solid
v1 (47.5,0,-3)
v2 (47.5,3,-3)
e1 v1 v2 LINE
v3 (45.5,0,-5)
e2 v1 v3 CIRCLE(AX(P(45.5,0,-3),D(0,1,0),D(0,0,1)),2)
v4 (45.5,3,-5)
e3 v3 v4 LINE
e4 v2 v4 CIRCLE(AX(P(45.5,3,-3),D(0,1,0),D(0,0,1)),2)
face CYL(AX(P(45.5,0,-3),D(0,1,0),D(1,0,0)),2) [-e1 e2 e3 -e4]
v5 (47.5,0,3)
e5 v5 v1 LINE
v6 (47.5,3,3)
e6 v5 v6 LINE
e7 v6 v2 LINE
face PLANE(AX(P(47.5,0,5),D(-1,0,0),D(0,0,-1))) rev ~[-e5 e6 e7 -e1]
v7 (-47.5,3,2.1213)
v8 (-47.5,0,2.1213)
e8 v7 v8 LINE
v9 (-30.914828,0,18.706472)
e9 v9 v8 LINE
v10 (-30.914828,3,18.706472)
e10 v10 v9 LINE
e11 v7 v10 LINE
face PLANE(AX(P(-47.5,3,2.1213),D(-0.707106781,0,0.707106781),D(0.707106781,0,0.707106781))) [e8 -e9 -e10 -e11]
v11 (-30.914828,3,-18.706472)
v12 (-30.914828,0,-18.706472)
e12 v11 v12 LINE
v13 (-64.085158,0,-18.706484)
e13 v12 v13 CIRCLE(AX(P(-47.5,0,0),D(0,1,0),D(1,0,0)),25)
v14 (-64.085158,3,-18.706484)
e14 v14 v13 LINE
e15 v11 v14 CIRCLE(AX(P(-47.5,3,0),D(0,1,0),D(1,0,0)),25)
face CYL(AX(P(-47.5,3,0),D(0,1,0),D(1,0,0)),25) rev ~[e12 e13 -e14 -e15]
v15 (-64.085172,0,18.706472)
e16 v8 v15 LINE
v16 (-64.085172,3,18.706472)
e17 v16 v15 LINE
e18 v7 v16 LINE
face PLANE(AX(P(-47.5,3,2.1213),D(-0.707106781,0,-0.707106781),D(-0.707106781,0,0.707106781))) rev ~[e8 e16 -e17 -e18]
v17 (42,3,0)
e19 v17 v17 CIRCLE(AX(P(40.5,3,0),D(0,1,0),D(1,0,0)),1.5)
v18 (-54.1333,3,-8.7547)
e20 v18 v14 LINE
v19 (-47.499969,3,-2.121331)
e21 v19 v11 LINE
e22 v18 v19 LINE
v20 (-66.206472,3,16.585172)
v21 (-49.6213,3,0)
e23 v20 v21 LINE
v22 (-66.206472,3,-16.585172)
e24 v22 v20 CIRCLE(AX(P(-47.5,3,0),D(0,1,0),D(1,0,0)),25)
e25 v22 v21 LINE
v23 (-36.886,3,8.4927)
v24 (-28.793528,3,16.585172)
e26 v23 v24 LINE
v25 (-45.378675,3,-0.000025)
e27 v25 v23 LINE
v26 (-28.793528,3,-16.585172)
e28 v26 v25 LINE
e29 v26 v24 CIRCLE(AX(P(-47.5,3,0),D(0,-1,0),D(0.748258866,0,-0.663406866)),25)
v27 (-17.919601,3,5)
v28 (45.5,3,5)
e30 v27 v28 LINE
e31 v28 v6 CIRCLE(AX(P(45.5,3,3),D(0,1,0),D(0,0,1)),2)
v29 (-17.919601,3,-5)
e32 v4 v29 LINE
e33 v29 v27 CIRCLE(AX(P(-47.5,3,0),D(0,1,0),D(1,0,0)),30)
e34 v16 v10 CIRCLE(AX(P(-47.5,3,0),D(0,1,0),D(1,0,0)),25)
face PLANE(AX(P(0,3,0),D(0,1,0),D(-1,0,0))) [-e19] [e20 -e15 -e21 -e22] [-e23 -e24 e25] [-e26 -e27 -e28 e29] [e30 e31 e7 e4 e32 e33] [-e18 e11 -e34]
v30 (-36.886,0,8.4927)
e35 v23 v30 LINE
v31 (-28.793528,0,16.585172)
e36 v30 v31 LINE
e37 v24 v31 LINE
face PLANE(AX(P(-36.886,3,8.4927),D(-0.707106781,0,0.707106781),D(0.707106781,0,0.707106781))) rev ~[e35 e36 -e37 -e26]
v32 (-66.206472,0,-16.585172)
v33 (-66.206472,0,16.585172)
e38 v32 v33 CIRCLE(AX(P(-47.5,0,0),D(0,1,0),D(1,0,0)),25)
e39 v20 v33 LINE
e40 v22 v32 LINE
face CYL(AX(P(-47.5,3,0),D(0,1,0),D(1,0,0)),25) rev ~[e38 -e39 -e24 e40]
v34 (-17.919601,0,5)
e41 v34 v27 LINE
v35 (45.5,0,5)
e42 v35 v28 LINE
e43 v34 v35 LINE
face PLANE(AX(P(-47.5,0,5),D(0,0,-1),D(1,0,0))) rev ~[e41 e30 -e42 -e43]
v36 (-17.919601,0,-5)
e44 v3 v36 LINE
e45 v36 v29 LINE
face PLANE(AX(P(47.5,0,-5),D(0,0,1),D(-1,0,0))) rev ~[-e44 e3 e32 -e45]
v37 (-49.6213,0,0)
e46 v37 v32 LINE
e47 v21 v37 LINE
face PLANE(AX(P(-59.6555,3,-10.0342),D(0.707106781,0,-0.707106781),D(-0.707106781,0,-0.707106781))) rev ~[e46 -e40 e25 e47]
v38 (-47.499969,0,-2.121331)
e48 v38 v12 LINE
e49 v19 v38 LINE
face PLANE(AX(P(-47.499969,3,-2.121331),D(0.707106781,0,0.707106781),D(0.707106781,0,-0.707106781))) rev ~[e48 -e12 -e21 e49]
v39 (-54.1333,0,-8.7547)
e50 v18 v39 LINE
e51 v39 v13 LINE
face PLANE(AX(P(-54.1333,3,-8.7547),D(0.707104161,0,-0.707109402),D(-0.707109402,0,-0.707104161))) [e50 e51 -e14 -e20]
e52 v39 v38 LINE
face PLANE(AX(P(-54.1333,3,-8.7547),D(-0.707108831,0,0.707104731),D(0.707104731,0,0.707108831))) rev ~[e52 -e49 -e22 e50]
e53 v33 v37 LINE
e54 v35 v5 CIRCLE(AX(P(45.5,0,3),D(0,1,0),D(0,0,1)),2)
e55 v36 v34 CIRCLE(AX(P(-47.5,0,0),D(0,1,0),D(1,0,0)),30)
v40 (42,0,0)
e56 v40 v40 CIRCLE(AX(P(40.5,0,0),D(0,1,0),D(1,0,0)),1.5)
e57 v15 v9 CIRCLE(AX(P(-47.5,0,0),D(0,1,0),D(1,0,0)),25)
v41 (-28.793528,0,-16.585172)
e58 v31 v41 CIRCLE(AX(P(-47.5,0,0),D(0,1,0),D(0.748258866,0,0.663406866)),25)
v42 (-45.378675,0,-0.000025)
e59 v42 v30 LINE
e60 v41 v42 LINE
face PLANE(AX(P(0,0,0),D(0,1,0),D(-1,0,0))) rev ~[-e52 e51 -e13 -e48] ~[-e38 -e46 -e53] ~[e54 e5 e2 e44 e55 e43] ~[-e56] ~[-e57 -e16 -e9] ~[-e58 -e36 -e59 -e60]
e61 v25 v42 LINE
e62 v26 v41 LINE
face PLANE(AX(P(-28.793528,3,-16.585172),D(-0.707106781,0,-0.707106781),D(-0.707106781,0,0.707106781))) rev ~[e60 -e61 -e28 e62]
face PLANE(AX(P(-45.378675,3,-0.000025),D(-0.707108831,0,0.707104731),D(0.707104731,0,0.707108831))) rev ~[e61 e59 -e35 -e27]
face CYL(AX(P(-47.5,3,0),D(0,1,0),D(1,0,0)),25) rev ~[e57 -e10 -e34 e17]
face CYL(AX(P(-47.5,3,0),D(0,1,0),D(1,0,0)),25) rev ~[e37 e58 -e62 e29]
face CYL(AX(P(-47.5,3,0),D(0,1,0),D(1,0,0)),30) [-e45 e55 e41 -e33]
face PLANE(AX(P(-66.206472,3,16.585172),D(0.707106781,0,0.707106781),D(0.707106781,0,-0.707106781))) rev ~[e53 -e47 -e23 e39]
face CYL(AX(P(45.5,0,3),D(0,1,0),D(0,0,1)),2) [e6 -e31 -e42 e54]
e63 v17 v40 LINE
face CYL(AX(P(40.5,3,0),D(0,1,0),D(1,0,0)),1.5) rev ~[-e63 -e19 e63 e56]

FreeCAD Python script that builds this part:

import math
import FreeCAD as App
import Part
import Sketcher


def edges_at(feature, points):
    """Names of the edges that pass closest to the given points."""
    edges = feature.Shape.Edges
    near = lambda p: min(range(len(edges)), key=lambda i: edges[i].distToShape(Part.Vertex(*p))[0])
    return sorted({f"Edge{near(p) + 1}" for p in points})

doc = App.newDocument("Part")
body = doc.addObject("PartDesign::Body", "Body")

# Sketch on XZ plane
sketch1 = body.newObject("Sketcher::SketchObject", "Sketch")
sketch1.AttachmentSupport = (doc.getObject("XZ_Plane"), [""])
sketch1.MapMode = "FlatFace"
sketch1.addGeometry([
    Part.LineSegment(App.Vector(-48, -5, 0), App.Vector(-48, 5, 0)),
    Part.LineSegment(App.Vector(-48, 5, 0), App.Vector(48, 5, 0)),
    Part.LineSegment(App.Vector(48, 5, 0), App.Vector(48, -5, 0)),
    Part.LineSegment(App.Vector(48, -5, 0), App.Vector(-48, -5, 0)),
], False)
sketch1.addConstraint([
    Sketcher.Constraint("Coincident", 0, 2, 1, 1),
    Sketcher.Constraint("Coincident", 1, 2, 2, 1),
    Sketcher.Constraint("Coincident", 2, 2, 3, 1),
    Sketcher.Constraint("Coincident", 3, 2, 0, 1),
    Sketcher.Constraint("Vertical", 0),
    Sketcher.Constraint("Horizontal", 1),
    Sketcher.Constraint("Vertical", 2),
    Sketcher.Constraint("Horizontal", 3),
    Sketcher.Constraint("Symmetric", 0, 2, 2, 2, -1, 1),
    Sketcher.Constraint("DistanceX", 1, 1, 1, 2, 95.0),
    Sketcher.Constraint("DistanceY", 0, 1, 0, 2, 10.0),
])
pad1 = body.newObject("PartDesign::Pad", "Pad")
pad1.Profile = sketch1
pad1.Length = 3
pad1.Reversed = True

# Sketch on XZ plane
sketch2 = body.newObject("Sketcher::SketchObject", "Sketch001")
sketch2.AttachmentSupport = (doc.getObject("XZ_Plane"), [""])
sketch2.MapMode = "FlatFace"
sketch2.AttachmentOffset = App.Placement(App.Vector(0, 0, -3), App.Rotation())
sketch2.addGeometry(Part.Circle(App.Vector(40.5, 0, 0), App.Vector(0, 0, 1), 1.5), False)
sketch2.addConstraint([
    Sketcher.Constraint("PointOnObject", 0, 3, -1),
    Sketcher.Constraint("Diameter", 0, 3.0),
    Sketcher.Constraint("DistanceX", -1, 1, 0, 3, 40.5),
])
pocket1 = body.newObject("PartDesign::Pocket", "Pocket")
pocket1.Profile = sketch2
pocket1.Length = 3
pocket1.Reversed = True
doc.recompute()

fillet = body.newObject("PartDesign::Fillet", "Fillet")
fillet.Base = (pocket1, edges_at(pocket1, [(-47.5, 1.5, 5)]))
fillet.Radius = 2
doc.recompute()

fillet2 = body.newObject("PartDesign::Fillet", "Fillet001")
fillet2.Base = (fillet, edges_at(fillet, [(-47.5, 1.5, -5)]))
fillet2.Radius = 2
doc.recompute()

fillet3 = body.newObject("PartDesign::Fillet", "Fillet002")
fillet3.Base = (fillet2, edges_at(fillet2, [(47.5, 1.5, 5)]))
fillet3.Radius = 2
doc.recompute()

fillet4 = body.newObject("PartDesign::Fillet", "Fillet003")
fillet4.Base = (fillet3, edges_at(fillet3, [(47.5, 1.5, -5)]))
fillet4.Radius = 2

# Sketch on XZ plane
sketch3 = body.newObject("Sketcher::SketchObject", "Sketch002")
sketch3.AttachmentSupport = (doc.getObject("XZ_Plane"), [""])
sketch3.MapMode = "FlatFace"
sketch3.AttachmentOffset = App.Placement(App.Vector(0, 0, -3), App.Rotation())
sketch3.addGeometry(Part.Circle(App.Vector(-48, 0, 0), App.Vector(0, 0, 1), 30), False)
sketch3.addConstraint([
    Sketcher.Constraint("PointOnObject", 0, 3, -1),
    Sketcher.Constraint("Diameter", 0, 60.0),
    Sketcher.Constraint("DistanceX", 0, 3, -1, 1, 47.5),
])
pad2 = body.newObject("PartDesign::Pad", "Pad001")
pad2.Profile = sketch3
pad2.Length = 3

# Sketch on XZ plane
sketch4 = body.newObject("Sketcher::SketchObject", "Sketch003")
sketch4.AttachmentSupport = (doc.getObject("XZ_Plane"), [""])
sketch4.MapMode = "FlatFace"
sketch4.AttachmentOffset = App.Placement(App.Vector(0, 0, -3), App.Rotation())
sketch4.addGeometry([
    Part.ArcOfCircle(Part.Circle(App.Vector(-48, 0, 0), App.Vector(0, 0, 1), 25), math.radians(-42), math.radians(42)),  # 0
    Part.LineSegment(App.Vector(-29, -17, 0), App.Vector(-45, 0, 0)),  # 1
    Part.LineSegment(App.Vector(-45, 0, 0), App.Vector(-37, 8, 0)),  # 2
    Part.LineSegment(App.Vector(-37, 8, 0), App.Vector(-29, 17, 0)),  # 3
    Part.LineSegment(App.Vector(-47, -2, 0), App.Vector(-31, -19, 0)),  # 4
    Part.ArcOfCircle(Part.Circle(App.Vector(-48, 0, 0), App.Vector(0, 0, 1), 25), math.radians(-132), math.radians(-48)),  # 5
    Part.LineSegment(App.Vector(-64, -19, 0), App.Vector(-54, -9, 0)),  # 6
    Part.LineSegment(App.Vector(-54, -9, 0), App.Vector(-47, -2, 0)),  # 7
    Part.LineSegment(App.Vector(-31, 19, 0), App.Vector(-48, 2, 0)),  # 8
    Part.LineSegment(App.Vector(-48, 2, 0), App.Vector(-64, 19, 0)),  # 9
    Part.ArcOfCircle(Part.Circle(App.Vector(-48, 0, 0), App.Vector(0, 0, 1), 25), math.radians(48), math.radians(132)),  # 10
    Part.LineSegment(App.Vector(-50, 0, 0), App.Vector(-66, -17, 0)),  # 11
    Part.ArcOfCircle(Part.Circle(App.Vector(-48, 0, 0), App.Vector(0, 0, 1), 25), math.radians(138), math.radians(222)),  # 12
    Part.LineSegment(App.Vector(-66, 17, 0), App.Vector(-50, 0, 0)),  # 13
], False)
sketch4.addConstraint([
    Sketcher.Constraint("Coincident", 0, 1, 1, 1),
    Sketcher.Constraint("Coincident", 1, 2, 2, 1),
    Sketcher.Constraint("Coincident", 2, 2, 3, 1),
    Sketcher.Constraint("Coincident", 3, 2, 0, 2),
    Sketcher.Constraint("Coincident", 4, 2, 5, 2),
    Sketcher.Constraint("Coincident", 5, 1, 6, 1),
    Sketcher.Constraint("Coincident", 6, 2, 7, 1),
    Sketcher.Constraint("Coincident", 7, 2, 4, 1),
    Sketcher.Constraint("Coincident", 8, 2, 9, 1),
    Sketcher.Constraint("Coincident", 9, 2, 10, 2),
    Sketcher.Constraint("Coincident", 10, 1, 8, 1),
    Sketcher.Constraint("Coincident", 11, 2, 12, 2),
    Sketcher.Constraint("Coincident", 12, 1, 13, 1),
    Sketcher.Constraint("Coincident", 13, 2, 11, 1),
    Sketcher.Constraint("Coincident", 5, 3, 0, 3),
    Sketcher.Constraint("Coincident", 10, 3, 0, 3),
    Sketcher.Constraint("Coincident", 12, 3, 0, 3),
    Sketcher.Constraint("Equal", 0, 5),
    Sketcher.Constraint("Equal", 5, 10),
    Sketcher.Constraint("Equal", 10, 12),
    Sketcher.Constraint("Symmetric", 0, 1, 3, 2, -1),
    Sketcher.Constraint("Symmetric", 7, 2, 8, 2, -1),
    Sketcher.Constraint("PointOnObject", 1, 2, -1),
    Sketcher.Constraint("PointOnObject", 13, 2, -1),
    Sketcher.Constraint("Perpendicular", 1, 2),
    Sketcher.Constraint("Parallel", 2, 3),
    Sketcher.Constraint("Perpendicular", 3, 4),
    Sketcher.Constraint("Perpendicular", 4, 6),
    Sketcher.Constraint("Parallel", 6, 7),
    Sketcher.Constraint("Parallel", 7, 8),
    Sketcher.Constraint("Perpendicular", 8, 9),
    Sketcher.Constraint("Perpendicular", 9, 11),
    Sketcher.Constraint("Perpendicular", 11, 13),
    Sketcher.Constraint("Horizontal", 4, 2, 5, 1),
    Sketcher.Constraint("Horizontal", 0, 1, 11, 2),
    Sketcher.Constraint("Equal", 1, 4),
    Sketcher.Constraint("Radius", 0, 25.0),
    Sketcher.Constraint("DistanceX", 0, 3, -1, 1, 47.5),
    Sketcher.Constraint("Distance", 1, 23.455),
    Sketcher.Constraint("Distance", 6, 14.074),
    Sketcher.Constraint("DistanceX", 2, 2, -1, 1, 36.886),
])
pocket2 = body.newObject("PartDesign::Pocket", "Pocket001")
pocket2.Profile = sketch4
pocket2.Length = 3
pocket2.Reversed = True

doc.recompute()
